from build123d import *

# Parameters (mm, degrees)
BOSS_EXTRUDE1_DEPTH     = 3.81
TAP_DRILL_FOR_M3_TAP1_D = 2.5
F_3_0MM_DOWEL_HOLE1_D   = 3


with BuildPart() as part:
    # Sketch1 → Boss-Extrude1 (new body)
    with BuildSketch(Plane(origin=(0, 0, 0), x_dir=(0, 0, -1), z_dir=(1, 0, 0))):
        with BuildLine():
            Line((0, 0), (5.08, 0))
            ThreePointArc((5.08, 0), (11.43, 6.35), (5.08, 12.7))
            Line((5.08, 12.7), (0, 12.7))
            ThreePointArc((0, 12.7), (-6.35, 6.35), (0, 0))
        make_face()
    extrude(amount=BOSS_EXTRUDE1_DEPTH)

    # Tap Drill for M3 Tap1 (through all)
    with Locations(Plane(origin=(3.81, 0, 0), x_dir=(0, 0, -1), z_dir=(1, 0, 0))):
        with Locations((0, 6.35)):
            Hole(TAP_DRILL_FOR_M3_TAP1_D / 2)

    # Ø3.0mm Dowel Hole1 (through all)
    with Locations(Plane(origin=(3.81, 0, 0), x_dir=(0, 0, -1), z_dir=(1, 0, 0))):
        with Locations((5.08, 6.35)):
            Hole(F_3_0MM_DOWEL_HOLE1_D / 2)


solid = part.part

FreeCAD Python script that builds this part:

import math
import FreeCAD as App
import Part
import Sketcher
from FreeCAD import Vector
Q = App.Units.Quantity

doc = App.newDocument("Part")
body = doc.addObject("PartDesign::Body", "Body")

# Sketch on YZ plane
sketch1 = body.newObject("Sketcher::SketchObject", "Sketch")
sketch1.AttachmentSupport = (doc.getObject("YZ_Plane"), [""])
sketch1.MapMode = "FlatFace"
sketch1.addGeometry([
    Part.LineSegment(Vector(0, 0, 0), Vector(0, -5, 0)),
    Part.ArcOfCircle(Part.Circle(Vector(6, -5, 0), Vector(0, 0, 1), 6), math.radians(180), math.radians(360)),
    Part.LineSegment(Vector(13, -5, 0), Vector(13, 0, 0)),
    Part.ArcOfCircle(Part.Circle(Vector(6, 0, 0), Vector(0, 0, 1), 6), math.radians(0), math.radians(180)),
], False)
sketch1.addConstraint([
    Sketcher.Constraint("Tangent", 0, 2, 1, 1),
    Sketcher.Constraint("Tangent", 1, 2, 2, 1),
    Sketcher.Constraint("Tangent", 2, 2, 3, 1),
    Sketcher.Constraint("Tangent", 3, 2, 0, 1),
    Sketcher.Constraint("Vertical", 0),
    Sketcher.Constraint("Vertical", 2),
    Sketcher.Constraint("Coincident", 3, 2, -1, 1),
    Sketcher.Constraint("Radius", 1, Q("0.25 in")),
    Sketcher.Constraint("DistanceY", 0, 2, 0, 1, Q("0.2 in")),
])
pad1 = body.newObject("PartDesign::Pad", "Pad")
pad1.Profile = sketch1
pad1.Length = Q("0.15 in")

# Sketch on YZ plane
sketch2 = body.newObject("Sketcher::SketchObject", "Sketch001")
sketch2.AttachmentSupport = (doc.getObject("YZ_Plane"), [""])
sketch2.MapMode = "FlatFace"
sketch2.AttachmentOffset = App.Placement(Vector(0, 0, 0.15 * 25.4), App.Rotation())
sketch2.addGeometry(Part.Circle(Vector(6.3, 0, 0), Vector(0, 0, 1), 1.2), False)
sketch2.addConstraint([
    Sketcher.Constraint("PointOnObject", 0, 3, -1),
    Sketcher.Constraint("Diameter", 0, Q("2.5 mm")),
    Sketcher.Constraint("DistanceX", -1, 1, 0, 3, Q("0.25 in")),
])
doc.recompute()
hole = body.newObject("PartDesign::Hole", "Hole")
hole.Profile = sketch2
hole.ThreadType = "None"
hole.Diameter = 2.5
hole.DepthType = "ThroughAll"

# Sketch on YZ plane
sketch3 = body.newObject("Sketcher::SketchObject", "Sketch002")
sketch3.AttachmentSupport = (doc.getObject("YZ_Plane"), [""])
sketch3.MapMode = "FlatFace"
sketch3.AttachmentOffset = App.Placement(Vector(0, 0, 0.15 * 25.4), App.Rotation())
sketch3.addGeometry(Part.Circle(Vector(6.3, -5.1, 0), Vector(0, 0, 1), 1.5), False)
sketch3.addConstraint([
    Sketcher.Constraint("DistanceY", 0, 3, -1, 1, Q("0.2 in")),
    Sketcher.Constraint("Diameter", 0, Q("3 mm")),
    Sketcher.Constraint("DistanceX", -1, 1, 0, 3, Q("0.25 in")),
])
doc.recompute()
hole2 = body.newObject("PartDesign::Hole", "Hole001")
hole2.Profile = sketch3
hole2.ThreadType = "None"
hole2.Diameter = 3
hole2.DepthType = "ThroughAll"

doc.recompute()
